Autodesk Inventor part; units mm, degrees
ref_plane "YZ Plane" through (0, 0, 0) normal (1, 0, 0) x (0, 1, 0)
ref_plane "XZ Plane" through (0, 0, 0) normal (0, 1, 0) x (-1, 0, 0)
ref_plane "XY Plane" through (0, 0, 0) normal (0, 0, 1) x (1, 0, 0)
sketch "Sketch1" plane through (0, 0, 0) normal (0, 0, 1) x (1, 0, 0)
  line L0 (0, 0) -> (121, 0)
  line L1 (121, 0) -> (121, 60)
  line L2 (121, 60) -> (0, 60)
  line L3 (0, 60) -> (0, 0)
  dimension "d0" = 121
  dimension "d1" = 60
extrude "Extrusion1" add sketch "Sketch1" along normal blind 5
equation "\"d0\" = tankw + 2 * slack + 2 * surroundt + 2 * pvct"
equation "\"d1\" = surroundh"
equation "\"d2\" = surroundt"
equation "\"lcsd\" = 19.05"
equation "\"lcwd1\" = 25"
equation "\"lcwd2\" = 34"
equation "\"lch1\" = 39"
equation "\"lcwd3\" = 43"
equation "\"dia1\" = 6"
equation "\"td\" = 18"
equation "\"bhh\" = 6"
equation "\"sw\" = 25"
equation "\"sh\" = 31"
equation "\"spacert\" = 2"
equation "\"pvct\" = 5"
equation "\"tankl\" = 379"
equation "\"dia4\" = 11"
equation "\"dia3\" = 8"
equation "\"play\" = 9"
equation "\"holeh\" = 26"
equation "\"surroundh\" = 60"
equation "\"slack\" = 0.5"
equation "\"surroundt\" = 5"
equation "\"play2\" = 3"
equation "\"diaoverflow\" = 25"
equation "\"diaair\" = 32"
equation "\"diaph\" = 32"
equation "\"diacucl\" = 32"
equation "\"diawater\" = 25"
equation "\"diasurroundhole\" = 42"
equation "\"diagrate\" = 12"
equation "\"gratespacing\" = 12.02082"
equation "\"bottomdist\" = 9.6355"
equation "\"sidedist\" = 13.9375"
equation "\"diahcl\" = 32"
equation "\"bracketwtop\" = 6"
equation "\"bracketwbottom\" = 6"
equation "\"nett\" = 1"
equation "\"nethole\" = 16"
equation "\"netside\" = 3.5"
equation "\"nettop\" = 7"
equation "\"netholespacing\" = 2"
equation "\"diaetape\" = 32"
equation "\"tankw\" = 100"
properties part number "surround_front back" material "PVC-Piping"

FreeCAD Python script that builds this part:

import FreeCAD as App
import Part
import Sketcher
from FreeCAD import Vector
Q = App.Units.Quantity


def add_polygon(sketch, points):
    """Adds a closed chain of lines whose ends are joined by coincident constraints."""
    first, n = sketch.GeometryCount, len(points)
    for a, b in zip(points, points[1:] + points[:1]):
        sketch.addGeometry(Part.LineSegment(App.Vector(*a, 0), App.Vector(*b, 0)), False)
    for i in range(n):
        sketch.addConstraint(Sketcher.Constraint("Coincident", first + i, 2, first + (i + 1) % n, 1))

doc = App.newDocument("Part")
body = doc.addObject("PartDesign::Body", "Body")

# Sketch on XY plane
sketch1 = body.newObject("Sketcher::SketchObject", "Sketch")
sketch1.AttachmentSupport = (doc.getObject("XY_Plane"), [""])
sketch1.MapMode = "FlatFace"
add_polygon(sketch1, [(0, 60), (0, 0), (121, 0), (121, 60)])  # lines 0-3
sketch1.addConstraint([
    Sketcher.Constraint("Vertical", 0),
    Sketcher.Constraint("Horizontal", 1),
    Sketcher.Constraint("Vertical", 2),
    Sketcher.Constraint("Horizontal", 3),
    Sketcher.Constraint("Coincident", 0, 2, -1, 1),
    Sketcher.Constraint("DistanceX", 1, 1, 1, 2, Q("121 mm")),
    Sketcher.Constraint("DistanceY", 0, 2, 0, 1, Q("60 mm")),
])
pad1 = body.newObject("PartDesign::Pad", "Pad")
pad1.Profile = sketch1
pad1.Length = 5

doc.recompute()
